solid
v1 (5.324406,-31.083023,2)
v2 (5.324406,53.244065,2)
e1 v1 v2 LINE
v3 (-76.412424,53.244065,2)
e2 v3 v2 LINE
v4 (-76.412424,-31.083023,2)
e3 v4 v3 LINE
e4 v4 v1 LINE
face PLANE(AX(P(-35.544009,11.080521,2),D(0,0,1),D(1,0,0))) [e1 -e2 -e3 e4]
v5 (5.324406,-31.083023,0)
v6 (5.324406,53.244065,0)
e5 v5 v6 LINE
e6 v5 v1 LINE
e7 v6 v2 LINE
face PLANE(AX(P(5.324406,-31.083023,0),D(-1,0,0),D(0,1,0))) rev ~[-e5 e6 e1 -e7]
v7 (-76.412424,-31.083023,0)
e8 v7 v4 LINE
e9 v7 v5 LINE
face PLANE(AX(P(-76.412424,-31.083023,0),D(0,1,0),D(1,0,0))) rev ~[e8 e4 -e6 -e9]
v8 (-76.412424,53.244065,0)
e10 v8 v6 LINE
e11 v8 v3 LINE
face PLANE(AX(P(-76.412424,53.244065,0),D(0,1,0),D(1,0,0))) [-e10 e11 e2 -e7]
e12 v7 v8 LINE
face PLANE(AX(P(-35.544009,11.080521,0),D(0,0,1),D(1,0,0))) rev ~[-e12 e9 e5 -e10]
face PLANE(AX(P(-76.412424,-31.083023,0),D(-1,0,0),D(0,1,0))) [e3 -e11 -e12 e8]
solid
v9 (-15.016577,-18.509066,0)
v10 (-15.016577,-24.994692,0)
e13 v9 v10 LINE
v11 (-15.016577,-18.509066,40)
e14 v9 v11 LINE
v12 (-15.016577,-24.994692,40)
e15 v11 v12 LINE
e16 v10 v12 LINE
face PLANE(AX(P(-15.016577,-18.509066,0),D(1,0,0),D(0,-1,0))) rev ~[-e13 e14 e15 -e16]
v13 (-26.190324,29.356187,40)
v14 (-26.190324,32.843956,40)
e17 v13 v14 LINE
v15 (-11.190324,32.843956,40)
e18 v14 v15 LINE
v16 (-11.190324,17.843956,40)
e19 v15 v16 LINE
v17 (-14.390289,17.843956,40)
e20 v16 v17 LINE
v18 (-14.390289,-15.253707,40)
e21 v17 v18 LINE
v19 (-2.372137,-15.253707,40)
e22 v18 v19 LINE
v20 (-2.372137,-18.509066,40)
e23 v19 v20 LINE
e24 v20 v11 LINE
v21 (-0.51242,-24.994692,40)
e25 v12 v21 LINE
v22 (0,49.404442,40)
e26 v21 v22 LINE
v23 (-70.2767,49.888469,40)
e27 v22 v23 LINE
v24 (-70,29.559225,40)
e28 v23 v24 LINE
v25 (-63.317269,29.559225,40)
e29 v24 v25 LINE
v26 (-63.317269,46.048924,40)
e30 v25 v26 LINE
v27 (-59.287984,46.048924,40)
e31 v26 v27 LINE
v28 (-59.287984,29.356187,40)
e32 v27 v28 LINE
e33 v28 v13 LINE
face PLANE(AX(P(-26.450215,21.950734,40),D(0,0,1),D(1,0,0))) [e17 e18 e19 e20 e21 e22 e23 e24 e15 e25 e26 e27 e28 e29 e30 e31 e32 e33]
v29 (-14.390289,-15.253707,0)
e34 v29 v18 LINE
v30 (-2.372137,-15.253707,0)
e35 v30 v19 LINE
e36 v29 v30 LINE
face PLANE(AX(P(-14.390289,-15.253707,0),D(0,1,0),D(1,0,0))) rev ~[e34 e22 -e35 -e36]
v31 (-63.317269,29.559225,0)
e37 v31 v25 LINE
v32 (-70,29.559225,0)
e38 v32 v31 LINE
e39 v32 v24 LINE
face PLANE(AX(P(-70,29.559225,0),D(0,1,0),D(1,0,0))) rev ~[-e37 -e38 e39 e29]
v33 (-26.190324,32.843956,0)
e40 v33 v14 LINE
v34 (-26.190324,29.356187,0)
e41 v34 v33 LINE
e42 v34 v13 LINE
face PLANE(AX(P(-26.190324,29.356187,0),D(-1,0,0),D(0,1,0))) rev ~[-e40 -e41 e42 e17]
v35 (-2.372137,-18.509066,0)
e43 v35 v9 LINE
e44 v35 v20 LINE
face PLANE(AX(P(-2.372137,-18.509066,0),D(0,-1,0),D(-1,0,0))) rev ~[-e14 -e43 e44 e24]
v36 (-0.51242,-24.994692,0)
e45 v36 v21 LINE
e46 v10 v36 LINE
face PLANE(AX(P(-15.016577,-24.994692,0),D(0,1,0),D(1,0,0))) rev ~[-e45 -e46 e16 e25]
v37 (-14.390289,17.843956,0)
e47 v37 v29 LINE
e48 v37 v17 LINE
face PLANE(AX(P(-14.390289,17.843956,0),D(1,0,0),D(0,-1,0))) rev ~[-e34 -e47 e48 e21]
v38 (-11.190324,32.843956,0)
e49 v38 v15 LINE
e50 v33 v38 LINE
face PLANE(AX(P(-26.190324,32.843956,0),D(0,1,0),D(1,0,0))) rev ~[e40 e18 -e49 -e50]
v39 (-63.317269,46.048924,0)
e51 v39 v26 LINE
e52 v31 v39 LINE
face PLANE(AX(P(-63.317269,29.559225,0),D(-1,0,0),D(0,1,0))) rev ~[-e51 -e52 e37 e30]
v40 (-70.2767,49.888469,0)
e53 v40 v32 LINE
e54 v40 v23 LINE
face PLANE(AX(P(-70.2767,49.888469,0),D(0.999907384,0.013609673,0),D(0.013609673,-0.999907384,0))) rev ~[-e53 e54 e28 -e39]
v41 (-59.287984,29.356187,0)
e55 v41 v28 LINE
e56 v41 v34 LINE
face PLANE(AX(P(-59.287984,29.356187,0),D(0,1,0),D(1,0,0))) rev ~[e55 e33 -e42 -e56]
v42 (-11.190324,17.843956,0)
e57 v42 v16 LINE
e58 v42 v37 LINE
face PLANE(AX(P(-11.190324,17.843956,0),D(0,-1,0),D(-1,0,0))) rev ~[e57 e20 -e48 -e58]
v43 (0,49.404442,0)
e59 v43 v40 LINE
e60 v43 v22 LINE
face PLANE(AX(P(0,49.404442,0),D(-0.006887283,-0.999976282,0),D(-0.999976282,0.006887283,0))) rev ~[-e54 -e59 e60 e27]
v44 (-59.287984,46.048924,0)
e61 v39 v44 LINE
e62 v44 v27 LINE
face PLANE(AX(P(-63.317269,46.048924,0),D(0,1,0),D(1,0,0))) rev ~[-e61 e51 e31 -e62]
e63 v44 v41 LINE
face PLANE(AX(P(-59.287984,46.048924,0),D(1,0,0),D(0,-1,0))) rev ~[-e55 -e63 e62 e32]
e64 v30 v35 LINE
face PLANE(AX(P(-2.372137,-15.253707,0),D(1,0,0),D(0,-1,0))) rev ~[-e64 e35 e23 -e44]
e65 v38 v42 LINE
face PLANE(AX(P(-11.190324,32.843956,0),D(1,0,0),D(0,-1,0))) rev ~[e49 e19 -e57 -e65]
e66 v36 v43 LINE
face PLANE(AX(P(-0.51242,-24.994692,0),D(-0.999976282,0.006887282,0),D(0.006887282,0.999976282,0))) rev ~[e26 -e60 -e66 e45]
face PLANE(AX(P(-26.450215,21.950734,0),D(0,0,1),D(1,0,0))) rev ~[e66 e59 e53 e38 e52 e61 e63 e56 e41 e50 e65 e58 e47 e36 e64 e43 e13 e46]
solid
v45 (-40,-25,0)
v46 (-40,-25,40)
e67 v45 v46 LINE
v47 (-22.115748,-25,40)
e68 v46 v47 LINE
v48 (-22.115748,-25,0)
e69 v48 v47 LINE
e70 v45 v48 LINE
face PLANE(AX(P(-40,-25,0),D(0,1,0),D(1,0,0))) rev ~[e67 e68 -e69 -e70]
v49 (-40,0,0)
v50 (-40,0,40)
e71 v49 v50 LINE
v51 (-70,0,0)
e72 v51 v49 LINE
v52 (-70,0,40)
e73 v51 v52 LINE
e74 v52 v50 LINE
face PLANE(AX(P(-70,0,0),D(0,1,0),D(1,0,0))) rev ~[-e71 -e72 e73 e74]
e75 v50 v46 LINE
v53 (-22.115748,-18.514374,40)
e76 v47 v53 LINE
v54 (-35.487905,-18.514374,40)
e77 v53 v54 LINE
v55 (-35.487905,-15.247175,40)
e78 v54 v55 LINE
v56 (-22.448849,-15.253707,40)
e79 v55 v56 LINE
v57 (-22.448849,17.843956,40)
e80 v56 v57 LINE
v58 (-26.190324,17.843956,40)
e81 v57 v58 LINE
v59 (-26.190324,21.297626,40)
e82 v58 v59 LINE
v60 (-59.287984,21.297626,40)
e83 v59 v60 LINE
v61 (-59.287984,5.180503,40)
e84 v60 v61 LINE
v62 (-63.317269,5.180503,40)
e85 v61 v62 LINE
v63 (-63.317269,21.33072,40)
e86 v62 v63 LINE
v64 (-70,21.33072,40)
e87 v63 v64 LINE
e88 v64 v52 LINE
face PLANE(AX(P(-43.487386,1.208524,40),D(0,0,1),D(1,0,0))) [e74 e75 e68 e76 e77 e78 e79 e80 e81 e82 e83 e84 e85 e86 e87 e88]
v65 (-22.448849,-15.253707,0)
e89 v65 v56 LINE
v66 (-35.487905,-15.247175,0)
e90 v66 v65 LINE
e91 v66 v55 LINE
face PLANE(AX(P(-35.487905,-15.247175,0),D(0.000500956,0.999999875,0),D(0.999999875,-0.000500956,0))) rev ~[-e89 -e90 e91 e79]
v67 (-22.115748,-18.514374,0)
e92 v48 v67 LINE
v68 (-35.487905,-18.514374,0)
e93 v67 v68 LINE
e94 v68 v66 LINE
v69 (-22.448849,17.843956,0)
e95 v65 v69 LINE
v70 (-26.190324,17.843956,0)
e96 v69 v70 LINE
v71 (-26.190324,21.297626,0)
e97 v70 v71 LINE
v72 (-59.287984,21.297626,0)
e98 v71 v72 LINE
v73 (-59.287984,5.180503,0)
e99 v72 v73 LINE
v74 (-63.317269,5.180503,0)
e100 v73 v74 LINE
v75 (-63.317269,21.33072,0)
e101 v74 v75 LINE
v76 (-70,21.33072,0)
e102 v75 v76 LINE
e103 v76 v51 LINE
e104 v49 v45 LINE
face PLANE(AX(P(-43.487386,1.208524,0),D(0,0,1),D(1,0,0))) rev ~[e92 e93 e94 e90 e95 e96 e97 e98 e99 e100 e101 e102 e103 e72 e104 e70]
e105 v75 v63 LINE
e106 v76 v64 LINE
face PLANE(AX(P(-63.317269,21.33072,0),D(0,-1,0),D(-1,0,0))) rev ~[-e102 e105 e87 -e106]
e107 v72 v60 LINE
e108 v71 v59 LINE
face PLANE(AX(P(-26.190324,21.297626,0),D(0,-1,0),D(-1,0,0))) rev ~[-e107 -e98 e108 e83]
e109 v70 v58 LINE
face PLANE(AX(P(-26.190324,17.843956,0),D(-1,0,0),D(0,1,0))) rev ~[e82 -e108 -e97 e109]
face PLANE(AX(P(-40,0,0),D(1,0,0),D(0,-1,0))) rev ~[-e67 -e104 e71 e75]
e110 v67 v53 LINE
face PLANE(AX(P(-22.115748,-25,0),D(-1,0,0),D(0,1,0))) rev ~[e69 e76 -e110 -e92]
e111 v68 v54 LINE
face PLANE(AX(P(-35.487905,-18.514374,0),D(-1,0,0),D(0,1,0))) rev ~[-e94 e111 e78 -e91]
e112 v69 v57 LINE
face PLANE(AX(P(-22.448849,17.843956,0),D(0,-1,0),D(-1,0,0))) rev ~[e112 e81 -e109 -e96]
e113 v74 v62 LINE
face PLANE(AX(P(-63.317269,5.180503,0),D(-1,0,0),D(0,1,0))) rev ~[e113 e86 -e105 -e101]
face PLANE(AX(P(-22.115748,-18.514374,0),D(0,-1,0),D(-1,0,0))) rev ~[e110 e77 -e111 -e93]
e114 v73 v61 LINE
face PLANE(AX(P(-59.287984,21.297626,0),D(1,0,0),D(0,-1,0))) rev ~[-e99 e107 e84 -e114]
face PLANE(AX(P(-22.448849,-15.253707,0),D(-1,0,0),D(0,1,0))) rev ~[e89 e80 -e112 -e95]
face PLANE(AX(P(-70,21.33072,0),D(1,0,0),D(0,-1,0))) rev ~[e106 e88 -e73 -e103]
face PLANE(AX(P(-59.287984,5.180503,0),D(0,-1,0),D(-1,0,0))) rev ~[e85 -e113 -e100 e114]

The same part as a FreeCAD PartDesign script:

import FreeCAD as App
import Part
import Sketcher
from FreeCAD import Vector
Q = App.Units.Quantity


def add_polygon(sketch, points):
    """Adds a closed chain of lines whose ends are joined by coincident constraints."""
    first, n = sketch.GeometryCount, len(points)
    for a, b in zip(points, points[1:] + points[:1]):
        sketch.addGeometry(Part.LineSegment(App.Vector(*a, 0), App.Vector(*b, 0)), False)
    for i in range(n):
        sketch.addConstraint(Sketcher.Constraint("Coincident", first + i, 2, first + (i + 1) % n, 1))

doc = App.newDocument("Part")
body = doc.addObject("PartDesign::Body", "Body")
body.AllowCompound = True

# Sketch on XY plane
sketch1 = doc.addObject("Sketcher::SketchObject", "Sketch")
body.addObject(sketch1)
sketch1.AttachmentSupport = (doc.XY_Plane, [""])
sketch1.MapMode = "FlatFace"
add_polygon(sketch1, [(-70, 0), (-40, 0), (-40, -25), (-22.1, -25), (-22.1, -18.5), (-35.5, -18.5), (-35.5, -15.2), (-22.4, -15.3), (-22.4, 17.8), (-26.2, 17.8), (-26.2, 21.3), (-59.3, 21.3), (-59.3, 5.2), (-63.3, 5.2), (-63.3, 21.3), (-70, 21.3)])  # lines 0-15
add_polygon(sketch1, [(-26.2, 29.4), (-26.2, 32.8), (-11.2, 32.8), (-11.2, 17.8), (-14.4, 17.8), (-14.4, -15.3), (-2.4, -15.3), (-2.4, -18.5), (-15, -18.5), (-15, -25), (-0.5, -25), (0, 49.4), (-70.3, 49.9), (-70, 29.6), (-63.3, 29.6), (-63.3, 46), (-59.3, 46), (-59.3, 29.4)])  # lines 16-33
sketch1.addConstraint([
    Sketcher.Constraint("Horizontal", 0),
    Sketcher.Constraint("Vertical", 1),
    Sketcher.Constraint("Horizontal", 2),
    Sketcher.Constraint("Vertical", 3),
    Sketcher.Constraint("Horizontal", 4),
    Sketcher.Constraint("Vertical", 5),
    Sketcher.Constraint("Vertical", 7),
    Sketcher.Constraint("Horizontal", 8),
    Sketcher.Constraint("Vertical", 9),
    Sketcher.Constraint("Horizontal", 10),
    Sketcher.Constraint("Vertical", 11),
    Sketcher.Constraint("Horizontal", 12),
    Sketcher.Constraint("Vertical", 13),
    Sketcher.Constraint("Horizontal", 14),
    Sketcher.Constraint("Vertical", 15),
    Sketcher.Constraint("Vertical", 16),
    Sketcher.Constraint("Horizontal", 17),
    Sketcher.Constraint("Vertical", 18),
    Sketcher.Constraint("Horizontal", 19),
    Sketcher.Constraint("Vertical", 20),
    Sketcher.Constraint("Horizontal", 21),
    Sketcher.Constraint("Vertical", 22),
    Sketcher.Constraint("Horizontal", 23),
    Sketcher.Constraint("Vertical", 24),
    Sketcher.Constraint("Horizontal", 25),
    Sketcher.Constraint("Horizontal", 29),
    Sketcher.Constraint("Vertical", 30),
    Sketcher.Constraint("Horizontal", 31),
    Sketcher.Constraint("Vertical", 32),
    Sketcher.Constraint("Horizontal", 33),
    Sketcher.Constraint("PointOnObject", 0, 2, -1),
    Sketcher.Constraint("PointOnObject", 26, 2, -2),
    Sketcher.Constraint("Perpendicular", 26, 27),
    Sketcher.Constraint("Horizontal", 8, 2, 18, 2),
    Sketcher.Constraint("Horizontal", 6, 2, 20, 2),
    Sketcher.Constraint("Vertical", 9, 2, 16, 2),
    Sketcher.Constraint("Vertical", 15, 2, 28, 2),
    Sketcher.Constraint("Vertical", 13, 2, 29, 2),
    Sketcher.Constraint("Vertical", 11, 2, 31, 2),
    Sketcher.Constraint("Equal", 17, 18),
    Sketcher.Constraint("Equal", 3, 24),
    Sketcher.Constraint("DistanceX", 0, 1, 0, 2, Q("30 mm")),
    Sketcher.Constraint("DistanceX", 17, 1, 17, 2, Q("15 mm")),
    Sketcher.Constraint("DistanceY", 1, 2, 1, 1, Q("25 mm")),
    Sketcher.Constraint("DistanceX", 0, 2, -1, 1, Q("40 mm")),
    Sketcher.Constraint("DistanceY", 5, 1, 5, 2, Q("3.267199 mm")),
    Sketcher.Constraint("DistanceY", 30, 1, 30, 2, Q("16.489699 mm")),
    Sketcher.Constraint("Distance", 26, Q("74.400899 mm")),
    Sketcher.Constraint("DistanceX", 2, 1, 2, 2, Q("17.884252 mm")),
    Sketcher.Constraint("DistanceX", 10, 2, 10, 1, Q("33.09766 mm")),
    Sketcher.Constraint("DistanceX", 14, 2, 14, 1, Q("6.682731 mm")),
    Sketcher.Constraint("DistanceX", 21, 1, 21, 2, Q("12.018152 mm")),
    Sketcher.Constraint("DistanceX", 23, 2, 23, 1, Q("12.64444 mm")),
    Sketcher.Constraint("DistanceY", 9, 1, 9, 2, Q("3.45367 mm")),
    Sketcher.Constraint("DistanceY", 15, 2, 15, 1, Q("21.33072 mm")),
    Sketcher.Constraint("DistanceY", 16, 1, 16, 2, Q("3.487769 mm")),
    Sketcher.Constraint("DistanceY", 22, 2, 22, 1, Q("3.255359 mm")),
    Sketcher.Constraint("DistanceX", 27, 2, -1, 1, Q("70.2767 mm")),
    Sketcher.Constraint("DistanceX", 6, 2, 3, 2, Q("0.333101 mm")),
    Sketcher.Constraint("DistanceY", 5, 2, 9, 2, Q("36.544801 mm")),
    Sketcher.Constraint("DistanceY", 10, 2, 28, 2, Q("8.261599 mm")),
    Sketcher.Constraint("DistanceX", 4, 2, 4, 1, Q("13.372157 mm")),
    Sketcher.Constraint("DistanceX", 8, 2, 8, 1, Q("3.741475 mm")),
    Sketcher.Constraint("DistanceX", 19, 2, 19, 1, Q("3.199965 mm")),
    Sketcher.Constraint("DistanceX", 25, 1, 25, 2, Q("14.504157 mm")),
    Sketcher.Constraint("DistanceY", 3, 1, 3, 2, Q("6.485626 mm")),
    Sketcher.Constraint("DistanceY", 7, 1, 7, 2, Q("33.097663 mm")),
    Sketcher.Constraint("DistanceY", 11, 2, 11, 1, Q("16.117123 mm")),
])
pad1 = doc.addObject("PartDesign::Pad", "Pad")
body.addObject(pad1)
pad1.Profile = sketch1
pad1.Length = 40
body2 = doc.addObject("PartDesign::Body", "Body001")

# Sketch on XY plane
sketch2 = doc.addObject("Sketcher::SketchObject", "Sketch001")
body2.addObject(sketch2)
sketch2.AttachmentSupport = (doc.getObject("XY_Plane001"), [""])
sketch2.MapMode = "FlatFace"
add_polygon(sketch2, [(-76, 53), (-76, -31), (5, -31), (5, 53)])  # lines 0-3
sketch2.addConstraint([
    Sketcher.Constraint("Vertical", 0),
    Sketcher.Constraint("Horizontal", 1),
    Sketcher.Constraint("Vertical", 2),
    Sketcher.Constraint("Horizontal", 3),
    Sketcher.Constraint("DistanceX", 1, 1, 1, 2, Q("81.73683 mm")),
    Sketcher.Constraint("DistanceY", 0, 2, 0, 1, Q("84.327088 mm")),
    Sketcher.Constraint("DistanceX", 0, 2, -1, 1, Q("76.412424 mm")),
    Sketcher.Constraint("DistanceY", 0, 2, -1, 1, Q("31.083023 mm")),
])
pad2 = doc.addObject("PartDesign::Pad", "Pad001")
body2.addObject(pad2)
pad2.Profile = sketch2
pad2.Length = 2

doc.recompute()
